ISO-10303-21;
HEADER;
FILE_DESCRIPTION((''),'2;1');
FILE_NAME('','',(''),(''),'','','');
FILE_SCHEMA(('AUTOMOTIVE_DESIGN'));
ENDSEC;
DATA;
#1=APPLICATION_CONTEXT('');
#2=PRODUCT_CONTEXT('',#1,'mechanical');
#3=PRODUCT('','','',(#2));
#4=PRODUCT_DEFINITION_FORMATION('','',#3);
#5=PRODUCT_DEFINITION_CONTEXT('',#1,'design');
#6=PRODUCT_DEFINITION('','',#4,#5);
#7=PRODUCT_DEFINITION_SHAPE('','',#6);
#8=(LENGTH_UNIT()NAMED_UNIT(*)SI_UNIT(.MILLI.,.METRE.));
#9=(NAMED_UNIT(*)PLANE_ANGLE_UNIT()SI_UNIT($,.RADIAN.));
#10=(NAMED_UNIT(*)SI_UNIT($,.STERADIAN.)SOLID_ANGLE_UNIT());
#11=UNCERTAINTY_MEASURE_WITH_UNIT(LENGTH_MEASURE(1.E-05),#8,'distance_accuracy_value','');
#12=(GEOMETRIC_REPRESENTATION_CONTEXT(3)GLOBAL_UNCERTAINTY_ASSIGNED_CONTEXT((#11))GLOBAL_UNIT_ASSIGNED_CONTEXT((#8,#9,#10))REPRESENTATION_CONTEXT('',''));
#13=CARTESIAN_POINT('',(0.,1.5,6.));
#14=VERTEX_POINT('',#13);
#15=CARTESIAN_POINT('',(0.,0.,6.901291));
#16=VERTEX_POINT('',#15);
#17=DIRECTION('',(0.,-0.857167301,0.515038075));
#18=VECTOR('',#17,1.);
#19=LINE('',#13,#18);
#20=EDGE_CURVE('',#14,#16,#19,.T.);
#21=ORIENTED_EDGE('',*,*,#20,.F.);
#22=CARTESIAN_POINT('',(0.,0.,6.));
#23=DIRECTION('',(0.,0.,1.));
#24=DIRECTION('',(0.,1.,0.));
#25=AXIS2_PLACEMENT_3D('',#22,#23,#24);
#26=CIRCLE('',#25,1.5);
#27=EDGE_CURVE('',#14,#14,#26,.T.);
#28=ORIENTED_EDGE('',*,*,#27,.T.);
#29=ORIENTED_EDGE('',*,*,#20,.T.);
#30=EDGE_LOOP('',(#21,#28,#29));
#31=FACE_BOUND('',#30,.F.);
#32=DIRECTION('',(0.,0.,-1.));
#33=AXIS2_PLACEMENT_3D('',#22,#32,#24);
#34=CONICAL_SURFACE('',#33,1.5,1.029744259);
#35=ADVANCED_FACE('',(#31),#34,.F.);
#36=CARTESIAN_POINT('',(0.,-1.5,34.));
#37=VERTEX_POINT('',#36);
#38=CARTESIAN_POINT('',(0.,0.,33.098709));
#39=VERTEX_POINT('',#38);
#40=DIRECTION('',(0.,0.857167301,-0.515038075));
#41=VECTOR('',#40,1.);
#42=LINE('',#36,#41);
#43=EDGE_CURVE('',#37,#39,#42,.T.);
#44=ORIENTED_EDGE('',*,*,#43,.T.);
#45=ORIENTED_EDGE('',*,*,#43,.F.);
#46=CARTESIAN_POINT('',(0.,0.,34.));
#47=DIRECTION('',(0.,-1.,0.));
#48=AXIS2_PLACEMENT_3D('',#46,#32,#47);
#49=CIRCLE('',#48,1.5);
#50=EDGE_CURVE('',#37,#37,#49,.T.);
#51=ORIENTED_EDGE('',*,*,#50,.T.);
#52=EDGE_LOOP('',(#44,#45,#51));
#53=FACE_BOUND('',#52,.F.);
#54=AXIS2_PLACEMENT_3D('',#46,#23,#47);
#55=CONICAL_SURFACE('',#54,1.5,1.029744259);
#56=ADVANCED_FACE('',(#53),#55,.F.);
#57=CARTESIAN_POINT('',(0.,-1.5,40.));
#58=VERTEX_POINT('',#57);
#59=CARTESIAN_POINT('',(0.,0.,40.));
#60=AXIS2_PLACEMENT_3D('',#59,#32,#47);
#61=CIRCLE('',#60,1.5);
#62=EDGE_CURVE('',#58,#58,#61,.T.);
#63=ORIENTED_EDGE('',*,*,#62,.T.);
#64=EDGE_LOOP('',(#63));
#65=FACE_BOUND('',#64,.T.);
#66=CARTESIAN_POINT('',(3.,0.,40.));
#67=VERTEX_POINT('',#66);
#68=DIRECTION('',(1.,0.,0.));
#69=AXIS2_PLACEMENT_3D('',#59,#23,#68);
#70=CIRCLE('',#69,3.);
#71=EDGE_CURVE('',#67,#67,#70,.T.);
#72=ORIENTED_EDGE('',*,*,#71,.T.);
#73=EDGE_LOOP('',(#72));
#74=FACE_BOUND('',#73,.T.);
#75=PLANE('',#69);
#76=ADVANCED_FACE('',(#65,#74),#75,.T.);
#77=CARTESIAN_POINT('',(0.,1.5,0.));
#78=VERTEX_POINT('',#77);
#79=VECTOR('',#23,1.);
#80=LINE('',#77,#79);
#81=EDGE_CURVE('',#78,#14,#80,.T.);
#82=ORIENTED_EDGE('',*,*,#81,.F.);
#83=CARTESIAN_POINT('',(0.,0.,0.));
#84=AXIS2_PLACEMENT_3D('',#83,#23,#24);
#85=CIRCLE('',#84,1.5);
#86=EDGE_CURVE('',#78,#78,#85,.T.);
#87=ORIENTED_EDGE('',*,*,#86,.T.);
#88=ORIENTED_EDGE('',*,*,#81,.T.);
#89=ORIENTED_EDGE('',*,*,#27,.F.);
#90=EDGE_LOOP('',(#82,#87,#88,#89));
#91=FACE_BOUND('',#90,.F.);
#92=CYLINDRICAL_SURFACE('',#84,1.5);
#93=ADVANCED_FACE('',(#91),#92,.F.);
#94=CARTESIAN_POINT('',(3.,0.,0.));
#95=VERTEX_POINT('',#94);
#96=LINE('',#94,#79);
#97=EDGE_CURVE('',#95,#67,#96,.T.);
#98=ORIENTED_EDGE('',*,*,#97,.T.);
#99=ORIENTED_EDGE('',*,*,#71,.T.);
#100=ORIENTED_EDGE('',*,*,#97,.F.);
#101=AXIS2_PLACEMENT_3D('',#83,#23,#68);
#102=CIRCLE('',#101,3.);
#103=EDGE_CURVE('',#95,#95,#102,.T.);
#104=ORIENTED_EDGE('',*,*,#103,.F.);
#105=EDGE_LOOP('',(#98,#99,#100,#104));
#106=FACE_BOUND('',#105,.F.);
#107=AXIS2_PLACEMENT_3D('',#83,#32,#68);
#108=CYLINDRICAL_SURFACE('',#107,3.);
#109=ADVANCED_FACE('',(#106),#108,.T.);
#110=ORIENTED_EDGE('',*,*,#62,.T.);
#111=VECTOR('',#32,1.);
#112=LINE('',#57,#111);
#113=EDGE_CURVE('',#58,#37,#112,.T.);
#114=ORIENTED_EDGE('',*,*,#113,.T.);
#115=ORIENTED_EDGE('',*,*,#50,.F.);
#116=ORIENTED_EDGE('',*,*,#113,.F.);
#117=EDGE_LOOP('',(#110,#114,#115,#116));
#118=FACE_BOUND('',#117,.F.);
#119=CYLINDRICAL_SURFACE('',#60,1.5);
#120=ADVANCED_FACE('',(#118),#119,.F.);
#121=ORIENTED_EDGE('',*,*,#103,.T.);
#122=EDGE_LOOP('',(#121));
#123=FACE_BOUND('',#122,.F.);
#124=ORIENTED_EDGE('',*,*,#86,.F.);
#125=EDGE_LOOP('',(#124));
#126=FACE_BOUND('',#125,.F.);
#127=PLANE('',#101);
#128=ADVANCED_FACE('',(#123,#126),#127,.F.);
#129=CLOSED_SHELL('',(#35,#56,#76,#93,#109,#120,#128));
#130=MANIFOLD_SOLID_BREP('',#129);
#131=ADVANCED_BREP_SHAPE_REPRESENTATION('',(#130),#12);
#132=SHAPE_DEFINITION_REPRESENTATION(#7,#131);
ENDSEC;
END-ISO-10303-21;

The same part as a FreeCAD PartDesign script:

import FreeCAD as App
import Part
import Sketcher
Q = App.Units.Quantity

doc = App.newDocument("Part")
body = doc.addObject("PartDesign::Body", "Body")

sketch1 = doc.addObject("Sketcher::SketchObject", "Sketch")
body.addObject(sketch1)
sketch1.AttachmentSupport = (doc.XY_Plane, [""])
sketch1.MapMode = "FlatFace"
sketch1.addGeometry(Part.Circle(App.Vector(0, 0, 0), App.Vector(0, 0, 1), 3), False)
sketch1.addConstraint([
    Sketcher.Constraint("Coincident", 0, 3, -1, 1),
    Sketcher.Constraint("Diameter", 0, Q("6 mm")),
])
pad1 = doc.addObject("PartDesign::Pad", "Pad")
body.addObject(pad1)
pad1.Profile = sketch1
pad1.Length = 40

sketch2 = doc.addObject("Sketcher::SketchObject", "Sketch001")
body.addObject(sketch2)
sketch2.AttachmentSupport = (doc.XY_Plane, [""])
sketch2.MapMode = "FlatFace"
sketch2.addGeometry(Part.Circle(App.Vector(0, 0, 0), App.Vector(0, 0, 1), 1.5), False)
sketch2.addConstraint([
    Sketcher.Constraint("Coincident", 0, 3, -1, 1),
    Sketcher.Constraint("Diameter", 0, Q("3 mm")),
])
doc.recompute()
hole = doc.addObject("PartDesign::Hole", "Hole")
body.addObject(hole)
hole.Profile = sketch2
hole.ThreadType = "None"
hole.Diameter = 3
hole.DepthType = "Dimension"
hole.Depth = 6
hole.DrillPoint = "Angled"
hole.DrillPointAngle = 118
hole.Reversed = True

sketch3 = doc.addObject("Sketcher::SketchObject", "Sketch002")
body.addObject(sketch3)
sketch3.AttachmentSupport = (doc.XY_Plane, [""])
sketch3.MapMode = "FlatFace"
sketch3.AttachmentOffset = App.Placement(App.Vector(0, 0, 40), App.Rotation())
sketch3.addGeometry(Part.Circle(App.Vector(0, 0, 0), App.Vector(0, 0, 1), 1.5), False)
sketch3.addConstraint([
    Sketcher.Constraint("Coincident", 0, 3, -1, 1),
    Sketcher.Constraint("Diameter", 0, Q("3 mm")),
])
doc.recompute()
hole2 = doc.addObject("PartDesign::Hole", "Hole001")
body.addObject(hole2)
hole2.Profile = sketch3
hole2.ThreadType = "None"
hole2.Diameter = 3
hole2.DepthType = "Dimension"
hole2.Depth = 6
hole2.DrillPoint = "Angled"
hole2.DrillPointAngle = 118

doc.recompute()
